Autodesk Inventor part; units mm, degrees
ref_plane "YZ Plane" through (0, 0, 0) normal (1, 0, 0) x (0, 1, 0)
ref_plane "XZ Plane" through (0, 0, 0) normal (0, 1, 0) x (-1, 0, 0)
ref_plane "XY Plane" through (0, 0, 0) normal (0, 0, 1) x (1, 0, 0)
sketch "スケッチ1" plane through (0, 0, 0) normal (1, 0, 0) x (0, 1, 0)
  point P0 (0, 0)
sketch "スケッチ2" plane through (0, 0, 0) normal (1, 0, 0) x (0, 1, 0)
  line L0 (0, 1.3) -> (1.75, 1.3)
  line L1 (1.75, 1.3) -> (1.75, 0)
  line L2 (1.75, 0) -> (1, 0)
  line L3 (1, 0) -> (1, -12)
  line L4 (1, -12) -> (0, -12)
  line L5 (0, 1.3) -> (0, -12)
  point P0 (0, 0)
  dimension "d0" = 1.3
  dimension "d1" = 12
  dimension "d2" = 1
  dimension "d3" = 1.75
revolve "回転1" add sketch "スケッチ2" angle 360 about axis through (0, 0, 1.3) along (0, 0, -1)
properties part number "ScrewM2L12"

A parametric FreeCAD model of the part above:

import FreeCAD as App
import Part
import Sketcher
Q = App.Units.Quantity


def add_polygon(sketch, points):
    """Adds a closed chain of lines whose ends are joined by coincident constraints."""
    first, n = sketch.GeometryCount, len(points)
    for a, b in zip(points, points[1:] + points[:1]):
        sketch.addGeometry(Part.LineSegment(App.Vector(*a, 0), App.Vector(*b, 0)), False)
    for i in range(n):
        sketch.addConstraint(Sketcher.Constraint("Coincident", first + i, 2, first + (i + 1) % n, 1))

doc = App.newDocument("Part")
body = doc.addObject("PartDesign::Body", "Body")

sketch1 = doc.addObject("Sketcher::SketchObject", "Sketch")
body.addObject(sketch1)
sketch1.AttachmentSupport = (doc.YZ_Plane, [""])
sketch1.MapMode = "FlatFace"
add_polygon(sketch1, [(1.8, 1.3), (0, 1.3), (0, -12), (1, -12), (1, 0), (1.8, 0)])
sketch1.addConstraint([
    Sketcher.Constraint("Horizontal", 0),
    Sketcher.Constraint("Vertical", 1),
    Sketcher.Constraint("Horizontal", 2),
    Sketcher.Constraint("Vertical", 3),
    Sketcher.Constraint("Horizontal", 4),
    Sketcher.Constraint("Vertical", 5),
    Sketcher.Constraint("PointOnObject", 0, 2, -2),
    Sketcher.Constraint("PointOnObject", 3, 2, -1),
    Sketcher.Constraint("DistanceX", 2, 1, 2, 2, Q("1 mm")),
    Sketcher.Constraint("DistanceY", 3, 1, 3, 2, Q("12 mm")),
    Sketcher.Constraint("DistanceY", 5, 1, 5, 2, Q("1.3 mm")),
    Sketcher.Constraint("DistanceX", 0, 2, 0, 1, Q("1.75 mm")),
])
revolution = doc.addObject("PartDesign::Revolution", "Revolution")
body.addObject(revolution)
revolution.Profile = sketch1
revolution.ReferenceAxis = (sketch1, ["V_Axis"])
revolution.Angle = 360

doc.recompute()
